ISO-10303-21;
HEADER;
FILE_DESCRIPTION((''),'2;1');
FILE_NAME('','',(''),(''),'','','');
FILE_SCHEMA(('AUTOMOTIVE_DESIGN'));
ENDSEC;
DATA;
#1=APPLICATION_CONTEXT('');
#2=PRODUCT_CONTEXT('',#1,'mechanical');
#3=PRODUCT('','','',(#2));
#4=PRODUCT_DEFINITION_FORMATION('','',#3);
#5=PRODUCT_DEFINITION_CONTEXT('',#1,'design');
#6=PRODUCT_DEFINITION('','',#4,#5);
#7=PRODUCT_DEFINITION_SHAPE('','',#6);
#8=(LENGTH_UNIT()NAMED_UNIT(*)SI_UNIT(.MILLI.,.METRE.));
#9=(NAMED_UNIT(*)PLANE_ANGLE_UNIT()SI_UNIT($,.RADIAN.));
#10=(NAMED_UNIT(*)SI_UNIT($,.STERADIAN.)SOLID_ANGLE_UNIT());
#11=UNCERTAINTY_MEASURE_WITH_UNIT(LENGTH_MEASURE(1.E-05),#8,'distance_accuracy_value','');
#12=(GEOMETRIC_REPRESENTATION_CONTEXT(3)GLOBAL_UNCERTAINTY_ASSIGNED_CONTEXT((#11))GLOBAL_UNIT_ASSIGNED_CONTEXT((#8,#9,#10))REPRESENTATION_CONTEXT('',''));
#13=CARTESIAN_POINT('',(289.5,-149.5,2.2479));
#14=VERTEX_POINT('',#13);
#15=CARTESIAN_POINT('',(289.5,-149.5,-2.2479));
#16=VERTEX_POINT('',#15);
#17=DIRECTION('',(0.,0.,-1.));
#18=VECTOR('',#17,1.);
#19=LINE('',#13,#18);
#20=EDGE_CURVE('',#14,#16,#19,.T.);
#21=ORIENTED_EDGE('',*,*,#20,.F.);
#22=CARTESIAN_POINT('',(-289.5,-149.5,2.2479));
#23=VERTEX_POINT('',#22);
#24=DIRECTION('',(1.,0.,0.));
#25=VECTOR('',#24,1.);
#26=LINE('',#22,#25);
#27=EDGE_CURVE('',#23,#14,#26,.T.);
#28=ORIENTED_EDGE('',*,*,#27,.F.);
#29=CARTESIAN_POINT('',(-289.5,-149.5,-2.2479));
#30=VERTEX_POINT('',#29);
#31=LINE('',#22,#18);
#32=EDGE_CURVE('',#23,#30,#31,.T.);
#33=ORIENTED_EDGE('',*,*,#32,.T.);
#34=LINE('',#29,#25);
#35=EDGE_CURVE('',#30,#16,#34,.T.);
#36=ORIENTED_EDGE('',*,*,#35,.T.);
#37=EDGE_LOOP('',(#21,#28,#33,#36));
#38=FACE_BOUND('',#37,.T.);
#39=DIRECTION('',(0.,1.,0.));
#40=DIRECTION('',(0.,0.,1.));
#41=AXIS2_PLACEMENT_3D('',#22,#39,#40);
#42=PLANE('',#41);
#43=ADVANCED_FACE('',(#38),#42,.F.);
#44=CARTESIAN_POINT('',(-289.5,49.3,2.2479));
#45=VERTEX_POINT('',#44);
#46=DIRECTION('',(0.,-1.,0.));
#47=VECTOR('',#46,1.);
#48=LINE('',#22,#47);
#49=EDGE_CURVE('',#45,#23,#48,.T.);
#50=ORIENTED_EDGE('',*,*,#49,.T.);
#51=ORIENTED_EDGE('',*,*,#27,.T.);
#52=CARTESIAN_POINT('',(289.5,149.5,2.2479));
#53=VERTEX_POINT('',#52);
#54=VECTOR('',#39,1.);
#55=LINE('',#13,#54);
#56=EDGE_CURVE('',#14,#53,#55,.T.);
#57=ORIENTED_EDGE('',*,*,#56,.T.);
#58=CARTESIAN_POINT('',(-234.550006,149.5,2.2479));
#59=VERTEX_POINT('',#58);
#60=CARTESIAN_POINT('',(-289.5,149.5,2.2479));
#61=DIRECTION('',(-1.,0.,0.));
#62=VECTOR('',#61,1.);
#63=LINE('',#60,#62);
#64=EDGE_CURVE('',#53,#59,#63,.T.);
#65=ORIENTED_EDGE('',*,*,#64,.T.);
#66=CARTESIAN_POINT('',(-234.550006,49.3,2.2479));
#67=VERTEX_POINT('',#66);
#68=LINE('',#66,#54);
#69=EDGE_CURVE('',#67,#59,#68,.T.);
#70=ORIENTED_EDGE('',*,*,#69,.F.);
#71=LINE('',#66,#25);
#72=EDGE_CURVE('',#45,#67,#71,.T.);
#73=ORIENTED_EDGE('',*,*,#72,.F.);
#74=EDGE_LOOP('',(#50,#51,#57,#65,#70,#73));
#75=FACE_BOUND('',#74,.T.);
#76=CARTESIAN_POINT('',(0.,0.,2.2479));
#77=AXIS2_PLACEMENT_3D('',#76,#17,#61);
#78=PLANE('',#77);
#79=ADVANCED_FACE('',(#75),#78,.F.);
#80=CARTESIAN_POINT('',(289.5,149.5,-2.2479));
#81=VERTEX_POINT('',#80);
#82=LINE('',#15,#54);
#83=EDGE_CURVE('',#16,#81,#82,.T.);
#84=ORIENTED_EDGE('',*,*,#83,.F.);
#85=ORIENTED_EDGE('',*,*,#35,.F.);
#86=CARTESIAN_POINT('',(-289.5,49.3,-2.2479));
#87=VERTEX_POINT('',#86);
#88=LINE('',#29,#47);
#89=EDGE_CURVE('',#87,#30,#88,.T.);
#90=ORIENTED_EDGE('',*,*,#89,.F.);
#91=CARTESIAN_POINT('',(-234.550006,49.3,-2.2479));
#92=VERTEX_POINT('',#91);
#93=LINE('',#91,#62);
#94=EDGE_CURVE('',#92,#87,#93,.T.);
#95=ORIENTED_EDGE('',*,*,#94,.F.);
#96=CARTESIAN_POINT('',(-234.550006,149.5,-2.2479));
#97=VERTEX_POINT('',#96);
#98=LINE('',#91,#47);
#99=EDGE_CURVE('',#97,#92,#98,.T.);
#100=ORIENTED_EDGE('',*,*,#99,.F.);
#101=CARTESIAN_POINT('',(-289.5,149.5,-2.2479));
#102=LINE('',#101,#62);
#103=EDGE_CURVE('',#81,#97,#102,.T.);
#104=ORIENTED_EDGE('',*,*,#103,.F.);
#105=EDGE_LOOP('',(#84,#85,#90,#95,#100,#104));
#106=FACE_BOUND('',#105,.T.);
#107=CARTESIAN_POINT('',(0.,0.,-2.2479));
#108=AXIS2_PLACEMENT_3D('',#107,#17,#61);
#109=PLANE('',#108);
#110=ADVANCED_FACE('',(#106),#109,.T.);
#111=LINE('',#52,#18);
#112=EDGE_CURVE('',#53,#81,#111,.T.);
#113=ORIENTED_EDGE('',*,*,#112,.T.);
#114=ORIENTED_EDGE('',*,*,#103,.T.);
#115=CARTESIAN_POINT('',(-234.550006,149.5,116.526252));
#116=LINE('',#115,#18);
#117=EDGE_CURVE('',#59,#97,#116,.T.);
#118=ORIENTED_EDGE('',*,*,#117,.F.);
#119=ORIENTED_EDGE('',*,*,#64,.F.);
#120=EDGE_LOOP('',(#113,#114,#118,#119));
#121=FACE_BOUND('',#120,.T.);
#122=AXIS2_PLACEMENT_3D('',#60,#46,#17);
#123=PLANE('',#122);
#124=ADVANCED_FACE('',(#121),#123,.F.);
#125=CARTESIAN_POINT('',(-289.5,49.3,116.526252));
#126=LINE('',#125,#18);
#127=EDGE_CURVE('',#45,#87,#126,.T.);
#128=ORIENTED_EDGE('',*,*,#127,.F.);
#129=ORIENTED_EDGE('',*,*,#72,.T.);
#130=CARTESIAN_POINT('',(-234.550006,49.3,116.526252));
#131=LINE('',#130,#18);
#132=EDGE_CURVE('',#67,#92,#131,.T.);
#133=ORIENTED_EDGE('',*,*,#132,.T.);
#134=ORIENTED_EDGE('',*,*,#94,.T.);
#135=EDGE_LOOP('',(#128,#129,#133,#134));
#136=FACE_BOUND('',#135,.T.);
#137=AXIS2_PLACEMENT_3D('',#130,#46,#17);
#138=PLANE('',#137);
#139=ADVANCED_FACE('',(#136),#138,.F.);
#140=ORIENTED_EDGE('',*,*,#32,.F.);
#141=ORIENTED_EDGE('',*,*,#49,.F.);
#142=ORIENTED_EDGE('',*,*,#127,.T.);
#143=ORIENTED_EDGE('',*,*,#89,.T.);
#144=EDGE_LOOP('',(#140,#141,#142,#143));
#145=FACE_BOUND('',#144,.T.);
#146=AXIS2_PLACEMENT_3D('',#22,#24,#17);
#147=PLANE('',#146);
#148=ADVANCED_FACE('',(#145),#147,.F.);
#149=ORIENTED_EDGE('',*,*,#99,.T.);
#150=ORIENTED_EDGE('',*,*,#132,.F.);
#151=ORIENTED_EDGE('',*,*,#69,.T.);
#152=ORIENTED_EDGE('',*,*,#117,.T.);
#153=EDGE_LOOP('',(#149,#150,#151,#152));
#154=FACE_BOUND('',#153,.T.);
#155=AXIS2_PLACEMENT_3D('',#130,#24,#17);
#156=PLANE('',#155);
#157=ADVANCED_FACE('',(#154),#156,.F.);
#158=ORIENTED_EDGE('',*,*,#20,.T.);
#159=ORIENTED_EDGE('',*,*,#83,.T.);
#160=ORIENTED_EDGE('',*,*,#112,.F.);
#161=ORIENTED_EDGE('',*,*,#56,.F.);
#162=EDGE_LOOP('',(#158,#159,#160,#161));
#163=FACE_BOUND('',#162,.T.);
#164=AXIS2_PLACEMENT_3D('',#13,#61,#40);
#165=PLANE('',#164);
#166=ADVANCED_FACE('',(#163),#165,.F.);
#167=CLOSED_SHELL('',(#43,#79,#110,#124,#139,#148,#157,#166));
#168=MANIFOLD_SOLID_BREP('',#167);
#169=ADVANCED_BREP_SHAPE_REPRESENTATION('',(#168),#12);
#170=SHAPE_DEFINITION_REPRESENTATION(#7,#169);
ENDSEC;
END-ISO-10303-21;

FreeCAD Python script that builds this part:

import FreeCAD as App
import Part
import Sketcher
Q = App.Units.Quantity

doc = App.newDocument("Part")
body = doc.addObject("PartDesign::Body", "Body")

# Sketch on XY plane
sketch1 = doc.addObject("Sketcher::SketchObject", "Sketch")
body.addObject(sketch1)
sketch1.AttachmentSupport = (doc.XY_Plane, [""])
sketch1.MapMode = "FlatFace"
sketch1.addGeometry(Part.LineSegment(App.Vector(-290, 150, 0), App.Vector(-290, -150, 0)), False)
sketch1.addGeometry(Part.LineSegment(App.Vector(-290, -150, 0), App.Vector(290, -150, 0)), False)
sketch1.addGeometry(Part.LineSegment(App.Vector(290, -150, 0), App.Vector(290, 150, 0)), False)
sketch1.addGeometry(Part.LineSegment(App.Vector(290, 150, 0), App.Vector(-290, 150, 0)), False)
sketch1.addConstraint(Sketcher.Constraint("Coincident", 0, 2, 1, 1))
sketch1.addConstraint(Sketcher.Constraint("Coincident", 1, 2, 2, 1))
sketch1.addConstraint(Sketcher.Constraint("Coincident", 2, 2, 3, 1))
sketch1.addConstraint(Sketcher.Constraint("Coincident", 3, 2, 0, 1))
sketch1.addConstraint(Sketcher.Constraint("Vertical", 0))
sketch1.addConstraint(Sketcher.Constraint("Horizontal", 1))
sketch1.addConstraint(Sketcher.Constraint("Vertical", 2))
sketch1.addConstraint(Sketcher.Constraint("Horizontal", 3))
sketch1.addConstraint(Sketcher.Constraint("Symmetric", 0, 2, 2, 2, -1, 1))
sketch1.addConstraint(Sketcher.Constraint("DistanceX", 1, 1, 1, 2, Q("579 mm")))
sketch1.addConstraint(Sketcher.Constraint("DistanceY", 0, 2, 0, 1, Q("299 mm")))
pad1 = doc.addObject("PartDesign::Pad", "Pad")
body.addObject(pad1)
pad1.Profile = sketch1
pad1.Length = 4.4958
pad1.Midplane = True

# Sketch on XY plane
sketch2 = doc.addObject("Sketcher::SketchObject", "Sketch001")
body.addObject(sketch2)
sketch2.AttachmentSupport = (doc.XY_Plane, [""])
sketch2.MapMode = "FlatFace"
sketch2.AttachmentOffset = App.Placement(App.Vector(0, 0, -2.2479), App.Rotation())
sketch2.addGeometry(Part.LineSegment(App.Vector(-235, 150, 0), App.Vector(-235, 49, 0)), False)
sketch2.addGeometry(Part.LineSegment(App.Vector(-235, 49, 0), App.Vector(-290, 49, 0)), False)
sketch2.addGeometry(Part.LineSegment(App.Vector(-290, 49, 0), App.Vector(-290, 150, 0)), False)
sketch2.addGeometry(Part.LineSegment(App.Vector(-290, 150, 0), App.Vector(-235, 150, 0)), False)
sketch2.addConstraint(Sketcher.Constraint("Coincident", 0, 2, 1, 1))
sketch2.addConstraint(Sketcher.Constraint("Coincident", 1, 2, 2, 1))
sketch2.addConstraint(Sketcher.Constraint("Coincident", 2, 2, 3, 1))
sketch2.addConstraint(Sketcher.Constraint("Coincident", 3, 2, 0, 1))
sketch2.addConstraint(Sketcher.Constraint("Vertical", 0))
sketch2.addConstraint(Sketcher.Constraint("Horizontal", 1))
sketch2.addConstraint(Sketcher.Constraint("Vertical", 2))
sketch2.addConstraint(Sketcher.Constraint("Horizontal", 3))
sketch2.addConstraint(Sketcher.Constraint("DistanceY", 0, 2, 0, 1, Q("100.2 mm")))
sketch2.addConstraint(Sketcher.Constraint("DistanceY", -1, 1, 0, 2, Q("49.3 mm")))
sketch2.addConstraint(Sketcher.Constraint("DistanceX", 1, 2, -1, 1, Q("289.5 mm")))
sketch2.addConstraint(Sketcher.Constraint("DistanceX", 1, 2, 1, 1, Q("54.949994 mm")))
pocket1 = doc.addObject("PartDesign::Pocket", "Pocket")
body.addObject(pocket1)
pocket1.Profile = sketch2
pocket1.Length = 4.4958
pocket1.Reversed = True

doc.recompute()
